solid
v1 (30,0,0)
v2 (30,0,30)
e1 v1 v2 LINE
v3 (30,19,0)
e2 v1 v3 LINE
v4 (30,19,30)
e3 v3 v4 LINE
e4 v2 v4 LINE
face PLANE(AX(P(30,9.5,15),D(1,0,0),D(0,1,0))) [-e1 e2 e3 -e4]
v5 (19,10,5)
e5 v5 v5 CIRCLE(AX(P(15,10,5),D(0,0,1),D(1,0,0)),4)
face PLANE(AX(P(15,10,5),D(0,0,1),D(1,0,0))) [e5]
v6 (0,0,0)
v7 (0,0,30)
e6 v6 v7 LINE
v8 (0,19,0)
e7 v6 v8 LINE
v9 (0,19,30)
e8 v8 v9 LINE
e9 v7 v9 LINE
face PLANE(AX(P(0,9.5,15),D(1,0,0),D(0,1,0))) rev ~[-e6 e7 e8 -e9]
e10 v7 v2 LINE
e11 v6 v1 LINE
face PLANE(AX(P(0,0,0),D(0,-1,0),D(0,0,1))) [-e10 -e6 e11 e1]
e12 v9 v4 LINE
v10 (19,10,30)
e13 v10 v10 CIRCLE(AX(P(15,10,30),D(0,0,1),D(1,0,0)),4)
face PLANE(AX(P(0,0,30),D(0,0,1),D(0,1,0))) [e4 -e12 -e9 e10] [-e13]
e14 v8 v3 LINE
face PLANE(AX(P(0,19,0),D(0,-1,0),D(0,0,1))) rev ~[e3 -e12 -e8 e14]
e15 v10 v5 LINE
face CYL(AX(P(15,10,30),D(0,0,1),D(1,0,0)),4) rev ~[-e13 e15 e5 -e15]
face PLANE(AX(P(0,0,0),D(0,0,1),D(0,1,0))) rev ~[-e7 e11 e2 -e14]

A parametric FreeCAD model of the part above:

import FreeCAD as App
import Part
import Sketcher
Q = App.Units.Quantity

doc = App.newDocument("Part")
params = doc.addObject("Spreadsheet::Sheet", "Params")
for row, (alias, value) in enumerate([
    ("sketch1_width", "19 mm"),
    ("sketch1_height", "30 mm"),
    ("pad1_length", "30 mm"),
    ("sketch2_diameter", "8 mm"),
    ("pocket1_length", "25 mm"),
], start=1):
    params.set(f"A{row}", alias)
    params.set(f"B{row}", "=" + value)
    params.setAlias(f"B{row}", alias)

body = doc.addObject("PartDesign::Body", "Body")

# Sketch on YZ plane
sketch1 = doc.addObject("Sketcher::SketchObject", "Sketch")
body.addObject(sketch1)
sketch1.AttachmentSupport = (doc.YZ_Plane, [""])
sketch1.MapMode = "FlatFace"
sketch1.addGeometry(Part.LineSegment(App.Vector(0, 30, 0), App.Vector(0, 0, 0)), False)
sketch1.addGeometry(Part.LineSegment(App.Vector(0, 0, 0), App.Vector(19, 0, 0)), False)
sketch1.addGeometry(Part.LineSegment(App.Vector(19, 0, 0), App.Vector(19, 30, 0)), False)
sketch1.addGeometry(Part.LineSegment(App.Vector(19, 30, 0), App.Vector(0, 30, 0)), False)
sketch1.addConstraint(Sketcher.Constraint("Coincident", 0, 2, 1, 1))
sketch1.addConstraint(Sketcher.Constraint("Coincident", 1, 2, 2, 1))
sketch1.addConstraint(Sketcher.Constraint("Coincident", 2, 2, 3, 1))
sketch1.addConstraint(Sketcher.Constraint("Coincident", 3, 2, 0, 1))
sketch1.addConstraint(Sketcher.Constraint("Vertical", 0))
sketch1.addConstraint(Sketcher.Constraint("Horizontal", 1))
sketch1.addConstraint(Sketcher.Constraint("Vertical", 2))
sketch1.addConstraint(Sketcher.Constraint("Horizontal", 3))
sketch1.addConstraint(Sketcher.Constraint("Coincident", 0, 2, -1, 1))
sketch1.addConstraint(Sketcher.Constraint("DistanceX", 1, 1, 1, 2, Q("19 mm")))
sketch1.addConstraint(Sketcher.Constraint("DistanceY", 0, 2, 0, 1, Q("30 mm")))
sketch1.setExpression("Constraints[9]", "Params.sketch1_width")
sketch1.setExpression("Constraints[10]", "Params.sketch1_height")
pad1 = doc.addObject("PartDesign::Pad", "Pad")
body.addObject(pad1)
pad1.Profile = sketch1
pad1.setExpression("Length", "Params.pad1_length")

# Sketch on XY plane
sketch2 = doc.addObject("Sketcher::SketchObject", "Sketch001")
body.addObject(sketch2)
sketch2.AttachmentSupport = (doc.XY_Plane, [""])
sketch2.MapMode = "FlatFace"
sketch2.AttachmentOffset = App.Placement(App.Vector(0, 0, 30), App.Rotation())
sketch2.addGeometry(Part.Circle(App.Vector(15, 10, 0), App.Vector(0, 0, 1), 4), False)
sketch2.addConstraint(Sketcher.Constraint("Diameter", 0, Q("8 mm")))
sketch2.addConstraint(Sketcher.Constraint("DistanceX", -1, 1, 0, 3, Q("15 mm")))
sketch2.addConstraint(Sketcher.Constraint("DistanceY", -1, 1, 0, 3, Q("10 mm")))
sketch2.setExpression("Constraints[0]", "Params.sketch2_diameter")
pocket1 = doc.addObject("PartDesign::Pocket", "Pocket")
body.addObject(pocket1)
pocket1.Profile = sketch2
pocket1.setExpression("Length", "Params.pocket1_length")

doc.recompute()
